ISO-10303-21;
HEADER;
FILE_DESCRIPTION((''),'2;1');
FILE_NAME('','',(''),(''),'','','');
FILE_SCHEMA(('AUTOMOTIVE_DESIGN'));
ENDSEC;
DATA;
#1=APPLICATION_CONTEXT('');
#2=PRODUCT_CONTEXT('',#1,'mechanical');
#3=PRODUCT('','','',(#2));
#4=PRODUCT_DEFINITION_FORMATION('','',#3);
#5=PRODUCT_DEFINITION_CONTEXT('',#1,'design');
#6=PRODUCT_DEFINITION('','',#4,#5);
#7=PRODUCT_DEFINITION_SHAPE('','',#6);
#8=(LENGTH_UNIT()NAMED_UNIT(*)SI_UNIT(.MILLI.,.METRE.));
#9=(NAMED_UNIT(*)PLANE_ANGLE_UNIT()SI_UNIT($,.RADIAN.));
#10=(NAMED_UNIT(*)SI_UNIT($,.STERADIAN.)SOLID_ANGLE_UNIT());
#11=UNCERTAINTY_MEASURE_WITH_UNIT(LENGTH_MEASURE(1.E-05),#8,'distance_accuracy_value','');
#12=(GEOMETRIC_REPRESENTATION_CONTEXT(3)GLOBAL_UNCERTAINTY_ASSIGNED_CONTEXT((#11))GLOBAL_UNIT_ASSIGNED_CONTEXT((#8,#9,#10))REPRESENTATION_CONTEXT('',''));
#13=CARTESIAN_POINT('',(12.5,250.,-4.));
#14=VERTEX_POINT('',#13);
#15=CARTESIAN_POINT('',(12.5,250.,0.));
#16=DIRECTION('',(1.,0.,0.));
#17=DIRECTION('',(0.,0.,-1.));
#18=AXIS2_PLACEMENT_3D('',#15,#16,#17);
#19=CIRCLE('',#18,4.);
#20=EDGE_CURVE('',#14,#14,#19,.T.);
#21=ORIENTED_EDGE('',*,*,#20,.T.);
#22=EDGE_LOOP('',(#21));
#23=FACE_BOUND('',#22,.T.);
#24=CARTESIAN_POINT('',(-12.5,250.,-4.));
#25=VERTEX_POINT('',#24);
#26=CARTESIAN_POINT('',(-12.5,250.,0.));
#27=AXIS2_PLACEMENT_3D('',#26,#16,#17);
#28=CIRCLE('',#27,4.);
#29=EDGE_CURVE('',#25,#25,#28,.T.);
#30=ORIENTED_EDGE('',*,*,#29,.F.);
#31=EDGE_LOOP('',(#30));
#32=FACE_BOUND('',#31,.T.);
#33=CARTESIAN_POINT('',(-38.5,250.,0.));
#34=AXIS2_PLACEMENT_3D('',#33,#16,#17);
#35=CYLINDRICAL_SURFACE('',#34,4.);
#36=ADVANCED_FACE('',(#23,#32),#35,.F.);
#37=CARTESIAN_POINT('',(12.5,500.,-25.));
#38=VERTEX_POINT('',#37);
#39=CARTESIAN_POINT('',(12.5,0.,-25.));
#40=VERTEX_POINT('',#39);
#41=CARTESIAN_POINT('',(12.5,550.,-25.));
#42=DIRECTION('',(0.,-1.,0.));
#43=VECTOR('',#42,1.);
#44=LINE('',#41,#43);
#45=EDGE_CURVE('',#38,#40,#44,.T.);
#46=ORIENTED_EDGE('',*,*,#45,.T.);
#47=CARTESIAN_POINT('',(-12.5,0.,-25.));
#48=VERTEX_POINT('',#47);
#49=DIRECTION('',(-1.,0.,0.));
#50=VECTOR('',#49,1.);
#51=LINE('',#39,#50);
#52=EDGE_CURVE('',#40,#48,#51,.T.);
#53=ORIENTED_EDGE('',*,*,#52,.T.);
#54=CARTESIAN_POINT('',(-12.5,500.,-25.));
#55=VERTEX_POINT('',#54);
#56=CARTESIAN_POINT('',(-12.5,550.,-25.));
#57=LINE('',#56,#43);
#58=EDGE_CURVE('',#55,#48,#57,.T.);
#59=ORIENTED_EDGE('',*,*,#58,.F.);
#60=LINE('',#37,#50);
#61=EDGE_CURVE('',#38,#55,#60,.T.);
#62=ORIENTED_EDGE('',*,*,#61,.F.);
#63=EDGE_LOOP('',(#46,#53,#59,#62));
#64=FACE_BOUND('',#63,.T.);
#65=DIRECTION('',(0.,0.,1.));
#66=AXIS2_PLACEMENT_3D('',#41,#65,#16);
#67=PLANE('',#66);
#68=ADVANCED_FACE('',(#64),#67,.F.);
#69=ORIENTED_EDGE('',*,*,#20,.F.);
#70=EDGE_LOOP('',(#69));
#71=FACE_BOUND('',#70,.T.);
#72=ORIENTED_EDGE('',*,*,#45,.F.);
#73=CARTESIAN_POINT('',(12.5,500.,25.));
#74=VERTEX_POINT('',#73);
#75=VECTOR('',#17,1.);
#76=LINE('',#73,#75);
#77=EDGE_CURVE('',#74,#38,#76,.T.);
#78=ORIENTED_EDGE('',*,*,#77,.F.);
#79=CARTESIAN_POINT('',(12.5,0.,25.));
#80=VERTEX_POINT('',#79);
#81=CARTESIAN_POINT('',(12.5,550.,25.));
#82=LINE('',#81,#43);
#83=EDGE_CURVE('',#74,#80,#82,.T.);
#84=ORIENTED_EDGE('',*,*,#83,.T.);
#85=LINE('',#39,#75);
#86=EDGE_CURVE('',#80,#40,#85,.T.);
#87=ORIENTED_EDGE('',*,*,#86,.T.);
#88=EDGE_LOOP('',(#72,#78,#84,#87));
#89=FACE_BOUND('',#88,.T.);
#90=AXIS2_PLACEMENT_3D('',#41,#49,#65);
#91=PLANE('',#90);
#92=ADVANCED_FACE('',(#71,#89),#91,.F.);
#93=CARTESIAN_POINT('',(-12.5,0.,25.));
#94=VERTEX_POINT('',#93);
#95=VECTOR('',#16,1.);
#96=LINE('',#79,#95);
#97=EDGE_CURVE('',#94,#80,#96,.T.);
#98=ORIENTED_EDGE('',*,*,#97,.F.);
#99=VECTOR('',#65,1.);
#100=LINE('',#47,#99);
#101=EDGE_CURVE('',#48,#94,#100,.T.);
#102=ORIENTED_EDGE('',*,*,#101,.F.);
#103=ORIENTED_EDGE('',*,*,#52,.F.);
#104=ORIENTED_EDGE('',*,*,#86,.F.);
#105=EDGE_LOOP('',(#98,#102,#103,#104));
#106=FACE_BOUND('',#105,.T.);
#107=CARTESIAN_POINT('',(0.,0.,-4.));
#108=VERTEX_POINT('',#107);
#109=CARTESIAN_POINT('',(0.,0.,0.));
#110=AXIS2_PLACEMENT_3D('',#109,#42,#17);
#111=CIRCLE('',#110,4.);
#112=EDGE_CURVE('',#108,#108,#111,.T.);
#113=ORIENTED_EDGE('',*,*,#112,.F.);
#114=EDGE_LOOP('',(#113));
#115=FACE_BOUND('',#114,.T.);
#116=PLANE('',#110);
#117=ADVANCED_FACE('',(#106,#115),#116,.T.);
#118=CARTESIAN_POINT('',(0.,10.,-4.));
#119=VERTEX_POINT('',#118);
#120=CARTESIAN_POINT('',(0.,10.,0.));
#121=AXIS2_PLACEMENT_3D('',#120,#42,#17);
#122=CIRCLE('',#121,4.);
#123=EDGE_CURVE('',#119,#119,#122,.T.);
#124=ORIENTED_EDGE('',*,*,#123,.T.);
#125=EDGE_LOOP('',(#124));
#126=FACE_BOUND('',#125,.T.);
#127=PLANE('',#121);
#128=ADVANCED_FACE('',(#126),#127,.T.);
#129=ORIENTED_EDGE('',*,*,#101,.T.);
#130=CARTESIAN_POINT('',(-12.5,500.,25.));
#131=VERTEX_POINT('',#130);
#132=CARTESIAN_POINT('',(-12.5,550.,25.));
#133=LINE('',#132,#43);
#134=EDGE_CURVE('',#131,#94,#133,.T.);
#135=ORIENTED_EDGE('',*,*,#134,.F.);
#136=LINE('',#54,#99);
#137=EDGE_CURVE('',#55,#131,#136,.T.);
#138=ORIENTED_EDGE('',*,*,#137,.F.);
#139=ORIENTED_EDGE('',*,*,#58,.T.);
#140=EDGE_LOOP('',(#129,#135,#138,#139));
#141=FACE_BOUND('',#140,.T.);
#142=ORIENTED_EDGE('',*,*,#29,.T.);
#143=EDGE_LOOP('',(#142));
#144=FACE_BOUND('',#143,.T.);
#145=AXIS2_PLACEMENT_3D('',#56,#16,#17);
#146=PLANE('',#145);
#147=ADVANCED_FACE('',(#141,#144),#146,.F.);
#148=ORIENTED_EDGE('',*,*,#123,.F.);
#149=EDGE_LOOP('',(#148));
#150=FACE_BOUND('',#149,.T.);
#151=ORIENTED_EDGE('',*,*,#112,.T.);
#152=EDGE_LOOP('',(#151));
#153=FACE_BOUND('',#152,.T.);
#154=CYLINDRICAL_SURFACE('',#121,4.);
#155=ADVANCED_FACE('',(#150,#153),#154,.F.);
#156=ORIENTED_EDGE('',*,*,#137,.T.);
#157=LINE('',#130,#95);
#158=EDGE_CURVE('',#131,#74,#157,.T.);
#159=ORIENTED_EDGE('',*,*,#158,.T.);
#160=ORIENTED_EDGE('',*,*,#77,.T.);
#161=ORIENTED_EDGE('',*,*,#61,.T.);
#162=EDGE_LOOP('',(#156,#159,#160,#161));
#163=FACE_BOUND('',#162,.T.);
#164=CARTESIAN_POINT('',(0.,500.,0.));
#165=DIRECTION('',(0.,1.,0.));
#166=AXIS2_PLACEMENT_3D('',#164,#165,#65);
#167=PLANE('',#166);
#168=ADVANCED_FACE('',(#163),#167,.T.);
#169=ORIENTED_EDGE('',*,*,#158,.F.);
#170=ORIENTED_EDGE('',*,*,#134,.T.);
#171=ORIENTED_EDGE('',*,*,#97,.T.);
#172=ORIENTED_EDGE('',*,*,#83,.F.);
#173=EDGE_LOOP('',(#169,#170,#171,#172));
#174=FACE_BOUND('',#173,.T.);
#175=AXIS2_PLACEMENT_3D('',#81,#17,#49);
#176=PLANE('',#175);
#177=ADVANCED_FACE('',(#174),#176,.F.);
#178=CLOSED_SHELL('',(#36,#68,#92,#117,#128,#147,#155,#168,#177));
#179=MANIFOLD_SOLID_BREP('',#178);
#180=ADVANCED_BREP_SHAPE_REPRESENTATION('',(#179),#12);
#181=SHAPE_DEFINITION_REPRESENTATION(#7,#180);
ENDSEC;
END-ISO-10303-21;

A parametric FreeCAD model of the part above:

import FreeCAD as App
import Part
import Sketcher
from FreeCAD import Vector


def add_polygon(sketch, points):
    """Adds a closed chain of lines whose ends are joined by coincident constraints."""
    first, n = sketch.GeometryCount, len(points)
    for a, b in zip(points, points[1:] + points[:1]):
        sketch.addGeometry(Part.LineSegment(App.Vector(*a, 0), App.Vector(*b, 0)), False)
    for i in range(n):
        sketch.addConstraint(Sketcher.Constraint("Coincident", first + i, 2, first + (i + 1) % n, 1))

doc = App.newDocument("Part")
body = doc.addObject("PartDesign::Body", "Body")

# Sketch on XZ plane
sketch1 = doc.addObject("Sketcher::SketchObject", "Sketch")
body.addObject(sketch1)
sketch1.AttachmentSupport = (doc.XZ_Plane, [""])
sketch1.MapMode = "FlatFace"
add_polygon(sketch1, [(-12, -25), (-12, 25), (12, 25), (12, -25)])  # lines 0-3
sketch1.addConstraint([
    Sketcher.Constraint("Vertical", 0),
    Sketcher.Constraint("Horizontal", 1),
    Sketcher.Constraint("Vertical", 2),
    Sketcher.Constraint("Horizontal", 3),
    Sketcher.Constraint("Symmetric", 0, 2, 2, 2, -1, 1),
    Sketcher.Constraint("DistanceX", 1, 1, 1, 2, 25.0),
    Sketcher.Constraint("DistanceY", 0, 1, 0, 2, 50.0),
])
pad1 = doc.addObject("PartDesign::Pad", "Pad")
body.addObject(pad1)
pad1.Profile = sketch1
pad1.Length = 550
pad1.Reversed = True

# Sketch on XZ plane
sketch2 = doc.addObject("Sketcher::SketchObject", "Sketch001")
body.addObject(sketch2)
sketch2.AttachmentSupport = (doc.XZ_Plane, [""])
sketch2.MapMode = "FlatFace"
sketch2.AttachmentOffset = App.Placement(Vector(0, 0, -550), App.Rotation())
sketch2.addGeometry(Part.Circle(Vector(0, 0, 0), Vector(0, 0, 1), 4), False)
sketch2.addConstraint([
    Sketcher.Constraint("Coincident", 0, 3, -1, 1),
    Sketcher.Constraint("Diameter", 0, 8.0),
])
pocket1 = doc.addObject("PartDesign::Pocket", "Pocket")
body.addObject(pocket1)
pocket1.Profile = sketch2
pocket1.Length = 10
pocket1.Reversed = True

# Sketch on XZ plane
sketch3 = doc.addObject("Sketcher::SketchObject", "Sketch002")
body.addObject(sketch3)
sketch3.AttachmentSupport = (doc.XZ_Plane, [""])
sketch3.MapMode = "FlatFace"
sketch3.AttachmentOffset = App.Placement(Vector(0, 0, -10), App.Rotation())
sketch3.addGeometry(Part.Circle(Vector(0, 0, 0), Vector(0, 0, 1), 4), False)
sketch3.addConstraint([
    Sketcher.Constraint("Coincident", 0, 3, -1, 1),
    Sketcher.Constraint("Diameter", 0, 8.0),
])
pocket2 = doc.addObject("PartDesign::Pocket", "Pocket001")
body.addObject(pocket2)
pocket2.Profile = sketch3
pocket2.Length = 10
pocket2.Reversed = True

# Sketch on XZ plane
sketch4 = doc.addObject("Sketcher::SketchObject", "Sketch003")
body.addObject(sketch4)
sketch4.AttachmentSupport = (doc.XZ_Plane, [""])
sketch4.MapMode = "FlatFace"
sketch4.AttachmentOffset = App.Placement(Vector(0, 0, -550), App.Rotation())
add_polygon(sketch4, [(-12, -25), (-12, 25), (12, 25), (12, -25)])  # lines 0-3
sketch4.addConstraint([
    Sketcher.Constraint("Vertical", 0),
    Sketcher.Constraint("Horizontal", 1),
    Sketcher.Constraint("Vertical", 2),
    Sketcher.Constraint("Horizontal", 3),
    Sketcher.Constraint("Symmetric", 0, 2, 2, 2, -1, 1),
    Sketcher.Constraint("DistanceX", 1, 1, 1, 2, 25.0),
    Sketcher.Constraint("DistanceY", 0, 1, 0, 2, 50.0),
])
pocket3 = doc.addObject("PartDesign::Pocket", "Pocket002")
body.addObject(pocket3)
pocket3.Profile = sketch4
pocket3.Length = 50
pocket3.Reversed = True

# Sketch on YZ plane
sketch5 = doc.addObject("Sketcher::SketchObject", "Sketch004")
body.addObject(sketch5)
sketch5.AttachmentSupport = (doc.YZ_Plane, [""])
sketch5.MapMode = "FlatFace"
sketch5.AttachmentOffset = App.Placement(Vector(0, 0, 12.5), App.Rotation())
sketch5.addGeometry(Part.Circle(Vector(250, 0, 0), Vector(0, 0, 1), 4), False)
sketch5.addConstraint([
    Sketcher.Constraint("PointOnObject", 0, 3, -1),
    Sketcher.Constraint("Diameter", 0, 8.0),
    Sketcher.Constraint("DistanceX", -1, 1, 0, 3, 250.0),
])
pocket4 = doc.addObject("PartDesign::Pocket", "Pocket003")
body.addObject(pocket4)
pocket4.Profile = sketch5
pocket4.Length = 51

doc.recompute()
